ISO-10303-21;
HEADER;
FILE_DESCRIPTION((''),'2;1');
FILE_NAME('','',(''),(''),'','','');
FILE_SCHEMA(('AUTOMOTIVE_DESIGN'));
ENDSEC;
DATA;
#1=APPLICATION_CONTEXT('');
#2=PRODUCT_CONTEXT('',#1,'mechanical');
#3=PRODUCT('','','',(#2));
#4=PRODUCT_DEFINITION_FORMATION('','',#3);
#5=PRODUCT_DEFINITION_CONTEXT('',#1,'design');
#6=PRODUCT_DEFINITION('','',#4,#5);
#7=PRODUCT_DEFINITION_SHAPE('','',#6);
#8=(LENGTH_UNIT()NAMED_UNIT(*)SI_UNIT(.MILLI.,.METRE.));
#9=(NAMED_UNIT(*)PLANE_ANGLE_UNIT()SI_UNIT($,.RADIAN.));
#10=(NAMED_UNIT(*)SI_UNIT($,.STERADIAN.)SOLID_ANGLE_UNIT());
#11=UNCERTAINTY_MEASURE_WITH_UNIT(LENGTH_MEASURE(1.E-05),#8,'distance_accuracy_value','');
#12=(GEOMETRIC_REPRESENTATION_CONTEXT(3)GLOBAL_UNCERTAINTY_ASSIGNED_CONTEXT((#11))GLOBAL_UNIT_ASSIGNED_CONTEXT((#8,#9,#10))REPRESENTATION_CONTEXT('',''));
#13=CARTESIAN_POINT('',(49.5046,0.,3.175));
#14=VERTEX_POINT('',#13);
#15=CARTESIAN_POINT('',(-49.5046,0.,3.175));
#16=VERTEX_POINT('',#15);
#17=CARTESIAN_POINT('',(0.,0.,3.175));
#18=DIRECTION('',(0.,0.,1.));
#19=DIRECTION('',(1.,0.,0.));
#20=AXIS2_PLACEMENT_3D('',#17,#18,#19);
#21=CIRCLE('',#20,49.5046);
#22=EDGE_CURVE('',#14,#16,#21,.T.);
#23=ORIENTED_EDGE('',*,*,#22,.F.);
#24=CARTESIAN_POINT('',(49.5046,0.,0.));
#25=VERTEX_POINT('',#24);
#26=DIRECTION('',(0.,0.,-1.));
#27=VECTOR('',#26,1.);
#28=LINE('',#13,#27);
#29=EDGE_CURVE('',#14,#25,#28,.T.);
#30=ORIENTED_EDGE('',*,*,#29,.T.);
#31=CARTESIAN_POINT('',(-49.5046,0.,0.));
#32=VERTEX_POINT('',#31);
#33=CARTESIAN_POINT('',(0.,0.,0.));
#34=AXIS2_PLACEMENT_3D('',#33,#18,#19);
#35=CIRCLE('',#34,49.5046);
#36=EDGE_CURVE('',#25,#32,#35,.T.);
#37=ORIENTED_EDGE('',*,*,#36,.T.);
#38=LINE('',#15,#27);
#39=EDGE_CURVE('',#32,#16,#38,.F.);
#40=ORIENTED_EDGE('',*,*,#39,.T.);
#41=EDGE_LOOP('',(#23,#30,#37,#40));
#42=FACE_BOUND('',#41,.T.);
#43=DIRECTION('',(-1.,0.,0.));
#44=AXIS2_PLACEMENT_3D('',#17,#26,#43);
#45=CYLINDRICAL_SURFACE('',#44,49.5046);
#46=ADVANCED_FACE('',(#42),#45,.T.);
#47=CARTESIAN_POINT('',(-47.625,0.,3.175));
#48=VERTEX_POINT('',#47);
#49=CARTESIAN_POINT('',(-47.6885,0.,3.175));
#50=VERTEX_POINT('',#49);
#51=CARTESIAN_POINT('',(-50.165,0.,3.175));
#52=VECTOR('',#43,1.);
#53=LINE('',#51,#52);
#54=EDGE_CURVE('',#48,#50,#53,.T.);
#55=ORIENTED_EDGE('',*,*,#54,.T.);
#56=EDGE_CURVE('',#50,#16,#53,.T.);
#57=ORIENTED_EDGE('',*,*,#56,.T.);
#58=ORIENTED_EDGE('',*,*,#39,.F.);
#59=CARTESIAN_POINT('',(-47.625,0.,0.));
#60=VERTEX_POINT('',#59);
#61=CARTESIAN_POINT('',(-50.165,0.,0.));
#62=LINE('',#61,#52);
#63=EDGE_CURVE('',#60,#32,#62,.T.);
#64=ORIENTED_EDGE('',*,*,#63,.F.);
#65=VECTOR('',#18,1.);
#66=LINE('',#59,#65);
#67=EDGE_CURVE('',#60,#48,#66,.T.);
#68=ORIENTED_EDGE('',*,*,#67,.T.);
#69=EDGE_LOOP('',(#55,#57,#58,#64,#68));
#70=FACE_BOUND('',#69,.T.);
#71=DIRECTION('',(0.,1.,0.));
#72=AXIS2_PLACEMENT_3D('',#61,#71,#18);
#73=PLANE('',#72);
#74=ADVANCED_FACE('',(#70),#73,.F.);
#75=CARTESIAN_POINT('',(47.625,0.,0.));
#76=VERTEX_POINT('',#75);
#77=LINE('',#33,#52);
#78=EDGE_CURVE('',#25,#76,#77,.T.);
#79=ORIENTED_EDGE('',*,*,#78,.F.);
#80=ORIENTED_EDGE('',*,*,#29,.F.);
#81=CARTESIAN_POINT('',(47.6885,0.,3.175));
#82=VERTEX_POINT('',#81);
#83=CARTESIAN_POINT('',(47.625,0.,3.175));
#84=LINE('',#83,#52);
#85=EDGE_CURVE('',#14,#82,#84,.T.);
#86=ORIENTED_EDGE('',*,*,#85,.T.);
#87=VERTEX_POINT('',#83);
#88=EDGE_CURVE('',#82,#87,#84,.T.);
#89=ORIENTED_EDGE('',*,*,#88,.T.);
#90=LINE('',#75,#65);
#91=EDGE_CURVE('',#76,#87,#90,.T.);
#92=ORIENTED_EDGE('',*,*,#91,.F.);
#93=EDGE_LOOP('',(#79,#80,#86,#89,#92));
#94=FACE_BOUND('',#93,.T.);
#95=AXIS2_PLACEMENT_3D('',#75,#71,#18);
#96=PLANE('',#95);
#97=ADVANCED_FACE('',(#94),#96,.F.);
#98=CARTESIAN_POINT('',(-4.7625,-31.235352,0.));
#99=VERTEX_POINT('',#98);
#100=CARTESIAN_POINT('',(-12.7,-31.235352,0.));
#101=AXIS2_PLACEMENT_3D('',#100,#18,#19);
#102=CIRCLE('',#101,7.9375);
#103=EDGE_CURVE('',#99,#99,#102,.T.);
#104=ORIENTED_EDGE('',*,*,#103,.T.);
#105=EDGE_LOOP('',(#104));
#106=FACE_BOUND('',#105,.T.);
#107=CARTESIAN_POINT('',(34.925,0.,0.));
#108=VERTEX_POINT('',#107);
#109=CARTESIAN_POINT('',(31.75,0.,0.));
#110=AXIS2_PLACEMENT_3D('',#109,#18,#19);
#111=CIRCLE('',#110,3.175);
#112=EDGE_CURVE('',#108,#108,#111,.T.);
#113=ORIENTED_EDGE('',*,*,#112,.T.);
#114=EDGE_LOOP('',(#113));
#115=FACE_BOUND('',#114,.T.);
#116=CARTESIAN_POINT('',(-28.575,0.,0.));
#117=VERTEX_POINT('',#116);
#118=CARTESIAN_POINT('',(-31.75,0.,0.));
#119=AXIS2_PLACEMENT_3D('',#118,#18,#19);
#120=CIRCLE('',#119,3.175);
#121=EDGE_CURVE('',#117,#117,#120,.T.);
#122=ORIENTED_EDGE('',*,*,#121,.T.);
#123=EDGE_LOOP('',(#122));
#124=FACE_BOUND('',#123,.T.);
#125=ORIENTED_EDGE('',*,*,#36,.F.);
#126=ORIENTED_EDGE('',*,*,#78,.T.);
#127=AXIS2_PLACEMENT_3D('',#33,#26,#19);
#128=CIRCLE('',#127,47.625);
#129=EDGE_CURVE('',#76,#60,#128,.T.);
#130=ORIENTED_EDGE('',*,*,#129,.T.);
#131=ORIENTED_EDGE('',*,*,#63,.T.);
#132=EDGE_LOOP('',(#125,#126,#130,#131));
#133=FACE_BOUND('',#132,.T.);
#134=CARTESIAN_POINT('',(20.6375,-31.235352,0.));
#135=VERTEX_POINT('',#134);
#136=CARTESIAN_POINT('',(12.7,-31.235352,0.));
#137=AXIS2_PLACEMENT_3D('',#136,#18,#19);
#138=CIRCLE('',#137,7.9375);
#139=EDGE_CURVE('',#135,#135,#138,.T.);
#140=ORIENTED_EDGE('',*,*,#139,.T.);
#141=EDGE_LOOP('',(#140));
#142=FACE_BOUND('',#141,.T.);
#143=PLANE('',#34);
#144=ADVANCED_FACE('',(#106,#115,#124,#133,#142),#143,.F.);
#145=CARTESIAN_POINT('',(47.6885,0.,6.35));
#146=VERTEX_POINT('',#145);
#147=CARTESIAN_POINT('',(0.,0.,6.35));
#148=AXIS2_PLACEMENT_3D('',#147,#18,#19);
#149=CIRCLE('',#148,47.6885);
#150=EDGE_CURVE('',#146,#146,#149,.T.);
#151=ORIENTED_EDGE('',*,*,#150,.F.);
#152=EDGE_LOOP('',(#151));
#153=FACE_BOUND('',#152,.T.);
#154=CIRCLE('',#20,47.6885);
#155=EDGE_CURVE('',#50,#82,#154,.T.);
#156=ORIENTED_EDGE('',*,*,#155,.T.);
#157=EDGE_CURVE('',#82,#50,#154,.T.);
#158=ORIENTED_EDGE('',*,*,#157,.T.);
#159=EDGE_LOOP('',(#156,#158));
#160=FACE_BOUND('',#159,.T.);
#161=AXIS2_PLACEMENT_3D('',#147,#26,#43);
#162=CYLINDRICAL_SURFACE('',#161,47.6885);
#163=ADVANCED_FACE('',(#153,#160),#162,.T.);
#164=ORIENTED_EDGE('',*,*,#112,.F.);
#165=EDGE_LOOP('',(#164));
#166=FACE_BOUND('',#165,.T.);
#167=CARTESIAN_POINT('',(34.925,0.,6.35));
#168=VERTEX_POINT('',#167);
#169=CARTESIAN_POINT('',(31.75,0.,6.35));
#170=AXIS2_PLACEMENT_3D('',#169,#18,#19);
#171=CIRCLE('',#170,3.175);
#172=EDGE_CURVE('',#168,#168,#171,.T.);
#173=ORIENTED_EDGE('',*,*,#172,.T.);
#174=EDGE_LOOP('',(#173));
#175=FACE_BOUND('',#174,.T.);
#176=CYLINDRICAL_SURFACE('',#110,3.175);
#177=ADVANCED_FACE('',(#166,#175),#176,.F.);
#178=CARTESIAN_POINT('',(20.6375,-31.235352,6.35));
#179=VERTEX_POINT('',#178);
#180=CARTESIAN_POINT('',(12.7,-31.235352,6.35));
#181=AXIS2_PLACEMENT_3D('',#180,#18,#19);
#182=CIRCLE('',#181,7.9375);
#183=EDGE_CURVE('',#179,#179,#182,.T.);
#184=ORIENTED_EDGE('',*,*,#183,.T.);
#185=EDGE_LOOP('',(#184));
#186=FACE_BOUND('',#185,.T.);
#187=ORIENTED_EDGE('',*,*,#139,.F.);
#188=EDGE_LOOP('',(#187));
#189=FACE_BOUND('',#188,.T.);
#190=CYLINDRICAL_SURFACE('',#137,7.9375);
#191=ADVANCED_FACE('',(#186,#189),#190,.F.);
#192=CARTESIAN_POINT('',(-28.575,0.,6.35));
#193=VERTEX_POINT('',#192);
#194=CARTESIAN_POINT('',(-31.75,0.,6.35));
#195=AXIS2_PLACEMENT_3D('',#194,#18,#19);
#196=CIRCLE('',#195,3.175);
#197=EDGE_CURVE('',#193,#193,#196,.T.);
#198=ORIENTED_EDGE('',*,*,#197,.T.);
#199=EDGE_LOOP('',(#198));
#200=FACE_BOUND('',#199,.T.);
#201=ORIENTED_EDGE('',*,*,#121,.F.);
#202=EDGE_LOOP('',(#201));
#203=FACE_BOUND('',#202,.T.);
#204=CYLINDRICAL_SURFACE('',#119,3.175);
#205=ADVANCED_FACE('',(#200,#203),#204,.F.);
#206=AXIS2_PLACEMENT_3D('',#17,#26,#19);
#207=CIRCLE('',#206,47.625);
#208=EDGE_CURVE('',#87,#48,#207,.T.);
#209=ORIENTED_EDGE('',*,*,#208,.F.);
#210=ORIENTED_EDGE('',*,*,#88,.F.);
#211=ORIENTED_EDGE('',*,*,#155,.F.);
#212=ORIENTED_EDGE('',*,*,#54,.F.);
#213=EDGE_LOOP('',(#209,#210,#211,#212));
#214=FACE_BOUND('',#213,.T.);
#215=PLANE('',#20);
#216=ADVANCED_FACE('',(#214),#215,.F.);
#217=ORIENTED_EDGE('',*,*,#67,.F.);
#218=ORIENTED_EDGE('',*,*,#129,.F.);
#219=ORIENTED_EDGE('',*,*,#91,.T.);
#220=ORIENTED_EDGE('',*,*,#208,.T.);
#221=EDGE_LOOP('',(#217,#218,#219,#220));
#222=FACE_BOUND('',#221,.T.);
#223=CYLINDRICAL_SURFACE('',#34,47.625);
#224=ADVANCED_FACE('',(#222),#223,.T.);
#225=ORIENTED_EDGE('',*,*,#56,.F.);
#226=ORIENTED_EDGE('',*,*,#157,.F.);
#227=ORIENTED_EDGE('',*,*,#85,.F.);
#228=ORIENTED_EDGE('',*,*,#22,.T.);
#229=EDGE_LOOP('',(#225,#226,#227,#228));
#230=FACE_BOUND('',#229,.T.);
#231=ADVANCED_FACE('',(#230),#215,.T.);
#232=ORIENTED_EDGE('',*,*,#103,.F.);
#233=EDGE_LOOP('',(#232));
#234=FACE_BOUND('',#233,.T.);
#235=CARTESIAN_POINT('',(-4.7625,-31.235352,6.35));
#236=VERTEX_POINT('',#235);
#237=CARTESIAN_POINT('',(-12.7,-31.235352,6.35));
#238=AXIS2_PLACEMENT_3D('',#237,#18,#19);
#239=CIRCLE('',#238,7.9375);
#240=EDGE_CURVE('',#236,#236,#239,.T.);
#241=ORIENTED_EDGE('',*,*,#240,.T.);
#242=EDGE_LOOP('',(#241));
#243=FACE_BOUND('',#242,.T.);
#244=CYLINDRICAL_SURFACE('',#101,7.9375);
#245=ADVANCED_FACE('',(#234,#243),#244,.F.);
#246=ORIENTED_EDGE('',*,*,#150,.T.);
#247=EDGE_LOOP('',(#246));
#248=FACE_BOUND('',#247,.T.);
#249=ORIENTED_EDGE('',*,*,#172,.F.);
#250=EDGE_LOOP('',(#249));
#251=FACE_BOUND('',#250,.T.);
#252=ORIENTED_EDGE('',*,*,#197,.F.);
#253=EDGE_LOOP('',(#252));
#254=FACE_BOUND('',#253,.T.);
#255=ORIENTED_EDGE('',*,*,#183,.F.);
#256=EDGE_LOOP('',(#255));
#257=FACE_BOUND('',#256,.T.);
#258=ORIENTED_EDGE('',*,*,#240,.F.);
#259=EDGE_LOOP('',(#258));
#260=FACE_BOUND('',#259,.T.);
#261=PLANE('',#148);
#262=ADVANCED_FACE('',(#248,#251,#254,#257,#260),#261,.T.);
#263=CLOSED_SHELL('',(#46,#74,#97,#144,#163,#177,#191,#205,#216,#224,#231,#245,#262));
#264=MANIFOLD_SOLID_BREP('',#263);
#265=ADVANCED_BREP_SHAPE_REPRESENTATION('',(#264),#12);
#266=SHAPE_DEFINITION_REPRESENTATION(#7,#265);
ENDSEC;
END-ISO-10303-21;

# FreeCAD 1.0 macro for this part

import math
import FreeCAD as App
import Part
import Sketcher
Q = App.Units.Quantity

doc = App.newDocument("Part")
body = doc.addObject("PartDesign::Body", "Body")

# Sketch on XY plane
sketch1 = body.newObject("Sketcher::SketchObject", "Sketch")
sketch1.AttachmentSupport = (doc.getObject("XY_Plane"), [""])
sketch1.MapMode = "FlatFace"
sketch1.addGeometry(Part.Circle(App.Vector(0, 0, 0), App.Vector(0, 0, 1), 50), False)
sketch1.addConstraint(Sketcher.Constraint("Coincident", 0, 3, -1, 1))
sketch1.addConstraint(Sketcher.Constraint("Diameter", 0, Q("3.898 in")))
pad1 = body.newObject("PartDesign::Pad", "Pad")
pad1.Profile = sketch1
pad1.Length = Q("0.125 in")

# Sketch on XY plane
sketch2 = body.newObject("Sketcher::SketchObject", "Sketch001")
sketch2.AttachmentSupport = (doc.getObject("XY_Plane"), [""])
sketch2.MapMode = "FlatFace"
sketch2.AttachmentOffset = App.Placement(App.Vector(0, 0, 0.125 * 25.4), App.Rotation())
sketch2.addGeometry(Part.Circle(App.Vector(0, 0, 0), App.Vector(0, 0, 1), 48), False)
sketch2.addConstraint(Sketcher.Constraint("Coincident", 0, 3, -1, 1))
sketch2.addConstraint(Sketcher.Constraint("Diameter", 0, Q("3.755 in")))
pad2 = body.newObject("PartDesign::Pad", "Pad001")
pad2.Profile = sketch2
pad2.Length = Q("0.125 in")

# Sketch on XY plane
sketch3 = body.newObject("Sketcher::SketchObject", "Sketch002")
sketch3.AttachmentSupport = (doc.getObject("XY_Plane"), [""])
sketch3.MapMode = "FlatFace"
sketch3.AttachmentOffset = App.Placement(App.Vector(0, 0, 0.25 * 25.4), App.Rotation())
sketch3.addGeometry(Part.Circle(App.Vector(-31.8, 0, 0), App.Vector(0, 0, 1), 3.2), False)
sketch3.addGeometry(Part.Circle(App.Vector(31.8, 0, 0), App.Vector(0, 0, 1), 3.2), False)
sketch3.addGeometry(Part.Circle(App.Vector(-12.7, -31.2, 0), App.Vector(0, 0, 1), 7.9), False)
sketch3.addGeometry(Part.Circle(App.Vector(12.7, -31.2, 0), App.Vector(0, 0, 1), 7.9), False)
sketch3.addConstraint(Sketcher.Constraint("Equal", 0, 1))
sketch3.addConstraint(Sketcher.Constraint("Equal", 2, 3))
sketch3.addConstraint(Sketcher.Constraint("Symmetric", 0, 3, 1, 3, -1, 1))
sketch3.addConstraint(Sketcher.Constraint("Symmetric", 2, 3, 3, 3, -2))
sketch3.addConstraint(Sketcher.Constraint("PointOnObject", 0, 3, -1))
sketch3.addConstraint(Sketcher.Constraint("Diameter", 0, Q("0.25 in")))
sketch3.addConstraint(Sketcher.Constraint("Diameter", 2, Q("0.625 in")))
sketch3.addConstraint(Sketcher.Constraint("DistanceX", 2, 3, 3, 3, Q("1 in")))
sketch3.addConstraint(Sketcher.Constraint("DistanceX", 0, 3, 1, 3, Q("2.5 in")))
sketch3.addConstraint(Sketcher.Constraint("DistanceY", 2, 3, -1, 1, 31.235352))
pocket1 = body.newObject("PartDesign::Pocket", "Pocket")
pocket1.Profile = sketch3
pocket1.Type = "ThroughAll"

# Sketch on XY plane
sketch4 = body.newObject("Sketcher::SketchObject", "Sketch003")
sketch4.AttachmentSupport = (doc.getObject("XY_Plane"), [""])
sketch4.MapMode = "FlatFace"
sketch4.AttachmentOffset = App.Placement(App.Vector(0, 0, 0.125 * 25.4), App.Rotation())
sketch4.addGeometry(Part.LineSegment(App.Vector(-47.6, 0, 0), App.Vector(-50.2, 0, 0)), False)
sketch4.addGeometry(Part.ArcOfCircle(Part.Circle(App.Vector(0, 0, 0), App.Vector(0, 0, 1), 50.2), math.radians(180), math.radians(360)), False)
sketch4.addGeometry(Part.LineSegment(App.Vector(50.2, 0, 0), App.Vector(47.6, 0, 0)), False)
sketch4.addGeometry(Part.ArcOfCircle(Part.Circle(App.Vector(0, 0, 0), App.Vector(0, 0, 1), 47.6), math.radians(180), math.radians(360)), False)
sketch4.addConstraint(Sketcher.Constraint("Coincident", 0, 2, 1, 1))
sketch4.addConstraint(Sketcher.Constraint("Coincident", 1, 2, 2, 1))
sketch4.addConstraint(Sketcher.Constraint("Coincident", 2, 2, 3, 2))
sketch4.addConstraint(Sketcher.Constraint("Coincident", 3, 1, 0, 1))
sketch4.addConstraint(Sketcher.Constraint("Horizontal", 0))
sketch4.addConstraint(Sketcher.Constraint("Horizontal", 2))
sketch4.addConstraint(Sketcher.Constraint("Coincident", 1, 3, -1, 1))
sketch4.addConstraint(Sketcher.Constraint("Coincident", 3, 3, -1, 1))
sketch4.addConstraint(Sketcher.Constraint("PointOnObject", 0, 2, -1))
sketch4.addConstraint(Sketcher.Constraint("PointOnObject", 1, 2, -1))
sketch4.addConstraint(Sketcher.Constraint("DistanceX", 0, 2, 0, 1, Q("0.1 in")))
sketch4.addConstraint(Sketcher.Constraint("Radius", 1, Q("1.975 in")))
pocket2 = body.newObject("PartDesign::Pocket", "Pocket001")
pocket2.Profile = sketch4
pocket2.Type = "ThroughAll"

doc.recompute()
